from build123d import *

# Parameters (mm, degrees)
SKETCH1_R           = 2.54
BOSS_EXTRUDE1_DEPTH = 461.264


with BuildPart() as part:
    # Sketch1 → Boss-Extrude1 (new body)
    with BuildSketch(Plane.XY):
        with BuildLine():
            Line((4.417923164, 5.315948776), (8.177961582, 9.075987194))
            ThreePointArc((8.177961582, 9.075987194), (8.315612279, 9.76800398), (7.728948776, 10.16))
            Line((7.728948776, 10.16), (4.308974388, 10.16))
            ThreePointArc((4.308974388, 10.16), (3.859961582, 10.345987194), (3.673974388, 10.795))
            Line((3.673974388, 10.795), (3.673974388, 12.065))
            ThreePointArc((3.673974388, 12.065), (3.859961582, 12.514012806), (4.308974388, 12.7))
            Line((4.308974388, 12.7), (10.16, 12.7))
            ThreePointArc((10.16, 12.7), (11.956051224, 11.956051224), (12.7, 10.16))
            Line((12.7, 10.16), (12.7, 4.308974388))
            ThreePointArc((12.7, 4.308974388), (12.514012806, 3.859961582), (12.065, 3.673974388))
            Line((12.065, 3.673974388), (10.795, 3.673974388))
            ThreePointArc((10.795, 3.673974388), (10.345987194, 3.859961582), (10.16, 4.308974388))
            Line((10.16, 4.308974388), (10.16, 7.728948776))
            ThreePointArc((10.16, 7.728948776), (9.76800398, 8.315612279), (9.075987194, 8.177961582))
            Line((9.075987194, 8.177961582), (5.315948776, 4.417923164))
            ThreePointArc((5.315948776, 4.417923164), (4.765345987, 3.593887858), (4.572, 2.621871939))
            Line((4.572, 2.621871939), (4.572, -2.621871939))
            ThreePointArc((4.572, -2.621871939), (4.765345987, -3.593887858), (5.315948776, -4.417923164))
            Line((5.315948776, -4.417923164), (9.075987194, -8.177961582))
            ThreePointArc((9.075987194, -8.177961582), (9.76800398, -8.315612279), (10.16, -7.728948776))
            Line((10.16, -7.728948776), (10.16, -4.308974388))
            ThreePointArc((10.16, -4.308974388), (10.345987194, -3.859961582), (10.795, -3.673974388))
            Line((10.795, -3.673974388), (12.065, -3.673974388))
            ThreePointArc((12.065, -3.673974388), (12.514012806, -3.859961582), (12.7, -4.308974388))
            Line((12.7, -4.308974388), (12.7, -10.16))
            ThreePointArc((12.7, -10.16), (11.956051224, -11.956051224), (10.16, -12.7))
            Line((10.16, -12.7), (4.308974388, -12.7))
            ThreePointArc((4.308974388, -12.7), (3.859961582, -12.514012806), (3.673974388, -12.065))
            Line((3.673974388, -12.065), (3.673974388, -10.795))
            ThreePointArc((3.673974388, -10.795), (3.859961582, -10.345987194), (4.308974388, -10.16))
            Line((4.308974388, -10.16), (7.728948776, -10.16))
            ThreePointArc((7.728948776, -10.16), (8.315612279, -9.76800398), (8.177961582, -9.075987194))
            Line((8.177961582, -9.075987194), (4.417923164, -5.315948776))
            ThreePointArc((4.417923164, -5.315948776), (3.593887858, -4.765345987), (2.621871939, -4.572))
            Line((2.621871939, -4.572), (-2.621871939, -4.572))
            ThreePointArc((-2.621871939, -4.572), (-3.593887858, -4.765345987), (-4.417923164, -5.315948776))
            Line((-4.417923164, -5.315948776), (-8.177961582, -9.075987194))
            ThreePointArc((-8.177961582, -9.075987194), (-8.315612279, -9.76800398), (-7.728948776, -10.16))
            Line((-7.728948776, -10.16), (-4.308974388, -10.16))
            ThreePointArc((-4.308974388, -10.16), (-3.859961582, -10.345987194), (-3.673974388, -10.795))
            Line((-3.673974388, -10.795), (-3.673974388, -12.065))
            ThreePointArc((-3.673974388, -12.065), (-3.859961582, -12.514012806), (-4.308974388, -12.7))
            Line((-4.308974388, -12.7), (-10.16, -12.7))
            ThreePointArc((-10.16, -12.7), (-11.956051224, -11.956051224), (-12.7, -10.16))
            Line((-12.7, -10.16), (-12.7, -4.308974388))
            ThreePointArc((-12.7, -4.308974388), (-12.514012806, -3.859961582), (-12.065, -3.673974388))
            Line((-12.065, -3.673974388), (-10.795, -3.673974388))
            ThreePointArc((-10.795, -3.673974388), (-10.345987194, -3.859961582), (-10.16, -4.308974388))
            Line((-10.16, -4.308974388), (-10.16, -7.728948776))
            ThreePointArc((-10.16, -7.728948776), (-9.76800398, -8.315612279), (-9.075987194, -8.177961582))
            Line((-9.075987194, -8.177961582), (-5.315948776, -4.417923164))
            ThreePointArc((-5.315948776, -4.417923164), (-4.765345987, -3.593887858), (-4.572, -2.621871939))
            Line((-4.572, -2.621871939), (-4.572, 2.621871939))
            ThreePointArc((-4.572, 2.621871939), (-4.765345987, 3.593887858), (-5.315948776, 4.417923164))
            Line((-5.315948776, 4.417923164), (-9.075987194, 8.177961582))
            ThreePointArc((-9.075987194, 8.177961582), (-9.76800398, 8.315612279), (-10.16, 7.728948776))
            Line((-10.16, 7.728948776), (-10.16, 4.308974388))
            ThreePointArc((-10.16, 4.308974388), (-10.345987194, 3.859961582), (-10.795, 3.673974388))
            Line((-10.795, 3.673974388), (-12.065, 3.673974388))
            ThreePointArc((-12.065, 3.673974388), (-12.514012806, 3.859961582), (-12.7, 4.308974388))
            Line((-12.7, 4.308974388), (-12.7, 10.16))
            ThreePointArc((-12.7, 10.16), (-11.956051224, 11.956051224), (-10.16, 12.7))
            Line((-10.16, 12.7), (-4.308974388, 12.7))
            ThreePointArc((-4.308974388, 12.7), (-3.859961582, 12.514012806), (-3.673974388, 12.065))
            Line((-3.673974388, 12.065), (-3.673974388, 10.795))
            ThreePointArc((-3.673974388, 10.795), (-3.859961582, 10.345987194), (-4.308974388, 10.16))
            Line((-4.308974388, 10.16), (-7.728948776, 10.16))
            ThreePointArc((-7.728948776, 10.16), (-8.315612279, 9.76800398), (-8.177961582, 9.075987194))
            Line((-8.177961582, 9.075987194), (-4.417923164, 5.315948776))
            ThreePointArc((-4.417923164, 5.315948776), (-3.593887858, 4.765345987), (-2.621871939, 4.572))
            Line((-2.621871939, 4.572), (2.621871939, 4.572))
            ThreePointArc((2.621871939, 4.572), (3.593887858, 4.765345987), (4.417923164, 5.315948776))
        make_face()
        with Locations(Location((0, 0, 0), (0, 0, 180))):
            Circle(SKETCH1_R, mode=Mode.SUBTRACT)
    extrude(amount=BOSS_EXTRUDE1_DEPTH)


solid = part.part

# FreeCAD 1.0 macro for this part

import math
import FreeCAD as App
import Part
import Sketcher
from FreeCAD import Vector
Q = App.Units.Quantity

doc = App.newDocument("Part")
body = doc.addObject("PartDesign::Body", "Body")

# Sketch on XY plane
sketch1 = body.newObject("Sketcher::SketchObject", "Sketch")
sketch1.AttachmentSupport = (doc.getObject("XY_Plane"), [""])
sketch1.MapMode = "FlatFace"
sketch1.addGeometry([
    Part.LineSegment(Vector(8.177962, 9.075987, 0), Vector(4.417923, 5.315949, 0)),  # 0
    Part.ArcOfCircle(Part.Circle(Vector(2.621872, 7.112, 0), Vector(0, 0, 1), 2.54), math.radians(-90), math.radians(-45)),  # 1
    Part.LineSegment(Vector(2.621872, 4.572, 0), Vector(-2.621872, 4.572, 0)),  # 2
    Part.ArcOfCircle(Part.Circle(Vector(-2.621872, 7.112, 0), Vector(0, 0, 1), 2.54), math.radians(-135), math.radians(-90)),  # 3
    Part.LineSegment(Vector(-4.417923, 5.315949, 0), Vector(-8.177962, 9.075987, 0)),  # 4
    Part.ArcOfCircle(Part.Circle(Vector(-7.728949, 9.525, 0), Vector(0, 0, 1), 0.635), math.radians(90), math.radians(225)),  # 5
    Part.LineSegment(Vector(-7.728949, 10.16, 0), Vector(-4.308974, 10.16, 0)),  # 6
    Part.ArcOfCircle(Part.Circle(Vector(-4.308974, 10.795, 0), Vector(0, 0, 1), 0.635), math.radians(-90), math.radians(0)),  # 7
    Part.LineSegment(Vector(-3.673974, 10.795, 0), Vector(-3.673974, 12.065, 0)),  # 8
    Part.ArcOfCircle(Part.Circle(Vector(-4.308974, 12.065, 0), Vector(0, 0, 1), 0.635), math.radians(0), math.radians(90)),  # 9
    Part.LineSegment(Vector(-4.308974, 12.7, 0), Vector(-10.16, 12.7, 0)),  # 10
    Part.ArcOfCircle(Part.Circle(Vector(-10.16, 10.16, 0), Vector(0, 0, 1), 2.54), math.radians(90), math.radians(180)),  # 11
    Part.LineSegment(Vector(-12.7, 10.16, 0), Vector(-12.7, 4.308974, 0)),  # 12
    Part.ArcOfCircle(Part.Circle(Vector(-12.065, 4.308974, 0), Vector(0, 0, 1), 0.635), math.radians(180), math.radians(270)),  # 13
    Part.LineSegment(Vector(-12.065, 3.673974, 0), Vector(-10.795, 3.673974, 0)),  # 14
    Part.ArcOfCircle(Part.Circle(Vector(-10.795, 4.308974, 0), Vector(0, 0, 1), 0.635), math.radians(-90), math.radians(0)),  # 15
    Part.LineSegment(Vector(-10.16, 4.308974, 0), Vector(-10.16, 7.728949, 0)),  # 16
    Part.ArcOfCircle(Part.Circle(Vector(-9.525, 7.728949, 0), Vector(0, 0, 1), 0.635), math.radians(45), math.radians(180)),  # 17
    Part.LineSegment(Vector(-9.075987, 8.177962, 0), Vector(-5.315949, 4.417923, 0)),  # 18
    Part.ArcOfCircle(Part.Circle(Vector(-7.112, 2.621872, 0), Vector(0, 0, 1), 2.54), math.radians(0), math.radians(45)),  # 19
    Part.LineSegment(Vector(-4.572, 2.621872, 0), Vector(-4.572, -2.621872, 0)),  # 20
    Part.ArcOfCircle(Part.Circle(Vector(-7.112, -2.621872, 0), Vector(0, 0, 1), 2.54), math.radians(-45), math.radians(0)),  # 21
    Part.LineSegment(Vector(-5.315949, -4.417923, 0), Vector(-9.075987, -8.177962, 0)),  # 22
    Part.ArcOfCircle(Part.Circle(Vector(-9.525, -7.728949, 0), Vector(0, 0, 1), 0.635), math.radians(180), math.radians(315)),  # 23
    Part.LineSegment(Vector(-10.16, -7.728949, 0), Vector(-10.16, -4.308974, 0)),  # 24
    Part.ArcOfCircle(Part.Circle(Vector(-10.795, -4.308974, 0), Vector(0, 0, 1), 0.635), math.radians(0), math.radians(90)),  # 25
    Part.LineSegment(Vector(-10.795, -3.673974, 0), Vector(-12.065, -3.673974, 0)),  # 26
    Part.ArcOfCircle(Part.Circle(Vector(-12.065, -4.308974, 0), Vector(0, 0, 1), 0.635), math.radians(90), math.radians(180)),  # 27
    Part.LineSegment(Vector(-12.7, -4.308974, 0), Vector(-12.7, -10.16, 0)),  # 28
    Part.ArcOfCircle(Part.Circle(Vector(-10.16, -10.16, 0), Vector(0, 0, 1), 2.54), math.radians(-180), math.radians(-90)),  # 29
    Part.LineSegment(Vector(-10.16, -12.7, 0), Vector(-4.308974, -12.7, 0)),  # 30
    Part.ArcOfCircle(Part.Circle(Vector(-4.308974, -12.065, 0), Vector(0, 0, 1), 0.635), math.radians(-90), math.radians(0)),  # 31
    Part.LineSegment(Vector(-3.673974, -12.065, 0), Vector(-3.673974, -10.795, 0)),  # 32
    Part.ArcOfCircle(Part.Circle(Vector(-4.308974, -10.795, 0), Vector(0, 0, 1), 0.635), math.radians(0), math.radians(90)),  # 33
    Part.LineSegment(Vector(-4.308974, -10.16, 0), Vector(-7.728949, -10.16, 0)),  # 34
    Part.ArcOfCircle(Part.Circle(Vector(-7.728949, -9.525, 0), Vector(0, 0, 1), 0.635), math.radians(135), math.radians(270)),  # 35
    Part.LineSegment(Vector(-8.177962, -9.075987, 0), Vector(-4.417923, -5.315949, 0)),  # 36
    Part.ArcOfCircle(Part.Circle(Vector(-2.621872, -7.112, 0), Vector(0, 0, 1), 2.54), math.radians(90), math.radians(135)),  # 37
    Part.LineSegment(Vector(-2.621872, -4.572, 0), Vector(2.621872, -4.572, 0)),  # 38
    Part.ArcOfCircle(Part.Circle(Vector(2.621872, -7.112, 0), Vector(0, 0, 1), 2.54), math.radians(45), math.radians(90)),  # 39
    Part.LineSegment(Vector(4.417923, -5.315949, 0), Vector(8.177962, -9.075987, 0)),  # 40
    Part.ArcOfCircle(Part.Circle(Vector(7.728949, -9.525, 0), Vector(0, 0, 1), 0.635), math.radians(-90), math.radians(45)),  # 41
    Part.LineSegment(Vector(7.728949, -10.16, 0), Vector(4.308974, -10.16, 0)),  # 42
    Part.ArcOfCircle(Part.Circle(Vector(4.308974, -10.795, 0), Vector(0, 0, 1), 0.635), math.radians(90), math.radians(180)),  # 43
    Part.LineSegment(Vector(3.673974, -10.795, 0), Vector(3.673974, -12.065, 0)),  # 44
    Part.ArcOfCircle(Part.Circle(Vector(4.308974, -12.065, 0), Vector(0, 0, 1), 0.635), math.radians(180), math.radians(270)),  # 45
    Part.LineSegment(Vector(4.308974, -12.7, 0), Vector(10.16, -12.7, 0)),  # 46
    Part.ArcOfCircle(Part.Circle(Vector(10.16, -10.16, 0), Vector(0, 0, 1), 2.54), math.radians(-90), math.radians(0)),  # 47
    Part.LineSegment(Vector(12.7, -10.16, 0), Vector(12.7, -4.308974, 0)),  # 48
    Part.ArcOfCircle(Part.Circle(Vector(12.065, -4.308974, 0), Vector(0, 0, 1), 0.635), math.radians(0), math.radians(90)),  # 49
    Part.LineSegment(Vector(12.065, -3.673974, 0), Vector(10.795, -3.673974, 0)),  # 50
    Part.ArcOfCircle(Part.Circle(Vector(10.795, -4.308974, 0), Vector(0, 0, 1), 0.635), math.radians(90), math.radians(180)),  # 51
    Part.LineSegment(Vector(10.16, -4.308974, 0), Vector(10.16, -7.728949, 0)),  # 52
    Part.ArcOfCircle(Part.Circle(Vector(9.525, -7.728949, 0), Vector(0, 0, 1), 0.635), math.radians(-135), math.radians(0)),  # 53
    Part.LineSegment(Vector(9.075987, -8.177962, 0), Vector(5.315949, -4.417923, 0)),  # 54
    Part.ArcOfCircle(Part.Circle(Vector(7.112, -2.621872, 0), Vector(0, 0, 1), 2.54), math.radians(180), math.radians(225)),  # 55
    Part.LineSegment(Vector(4.572, -2.621872, 0), Vector(4.572, 2.621872, 0)),  # 56
    Part.ArcOfCircle(Part.Circle(Vector(7.112, 2.621872, 0), Vector(0, 0, 1), 2.54), math.radians(135), math.radians(180)),  # 57
    Part.LineSegment(Vector(5.315949, 4.417923, 0), Vector(9.075987, 8.177962, 0)),  # 58
    Part.ArcOfCircle(Part.Circle(Vector(9.525, 7.728949, 0), Vector(0, 0, 1), 0.635), math.radians(0), math.radians(135)),  # 59
    Part.LineSegment(Vector(10.16, 7.728949, 0), Vector(10.16, 4.308974, 0)),  # 60
    Part.ArcOfCircle(Part.Circle(Vector(10.795, 4.308974, 0), Vector(0, 0, 1), 0.635), math.radians(180), math.radians(270)),  # 61
    Part.LineSegment(Vector(10.795, 3.673974, 0), Vector(12.065, 3.673974, 0)),  # 62
    Part.ArcOfCircle(Part.Circle(Vector(12.065, 4.308974, 0), Vector(0, 0, 1), 0.635), math.radians(-90), math.radians(0)),  # 63
    Part.LineSegment(Vector(12.7, 4.308974, 0), Vector(12.7, 10.16, 0)),  # 64
    Part.ArcOfCircle(Part.Circle(Vector(10.16, 10.16, 0), Vector(0, 0, 1), 2.54), math.radians(0), math.radians(90)),  # 65
    Part.LineSegment(Vector(10.16, 12.7, 0), Vector(4.308974, 12.7, 0)),  # 66
    Part.ArcOfCircle(Part.Circle(Vector(4.308974, 12.065, 0), Vector(0, 0, 1), 0.635), math.radians(90), math.radians(180)),  # 67
    Part.LineSegment(Vector(3.673974, 12.065, 0), Vector(3.673974, 10.795, 0)),  # 68
    Part.ArcOfCircle(Part.Circle(Vector(4.308974, 10.795, 0), Vector(0, 0, 1), 0.635), math.radians(180), math.radians(270)),  # 69
    Part.LineSegment(Vector(4.308974, 10.16, 0), Vector(7.728949, 10.16, 0)),  # 70
    Part.ArcOfCircle(Part.Circle(Vector(7.728949, 9.525, 0), Vector(0, 0, 1), 0.635), math.radians(-45), math.radians(90)),  # 71
    Part.Circle(Vector(0, 0, 0), Vector(0, 0, 1), 2.54),  # 72
], False)
sketch1.addConstraint([
    Sketcher.Constraint("Tangent", 0, 2, 1, 2),
    Sketcher.Constraint("Tangent", 1, 1, 2, 1),
    Sketcher.Constraint("Tangent", 2, 2, 3, 2),
    Sketcher.Constraint("Tangent", 3, 1, 4, 1),
    Sketcher.Constraint("Tangent", 4, 2, 5, 2),
    Sketcher.Constraint("Tangent", 5, 1, 6, 1),
    Sketcher.Constraint("Tangent", 6, 2, 7, 1),
    Sketcher.Constraint("Tangent", 7, 2, 8, 1),
    Sketcher.Constraint("Tangent", 8, 2, 9, 1),
    Sketcher.Constraint("Tangent", 9, 2, 10, 1),
    Sketcher.Constraint("Tangent", 10, 2, 11, 1),
    Sketcher.Constraint("Tangent", 11, 2, 12, 1),
    Sketcher.Constraint("Tangent", 12, 2, 13, 1),
    Sketcher.Constraint("Tangent", 13, 2, 14, 1),
    Sketcher.Constraint("Tangent", 14, 2, 15, 1),
    Sketcher.Constraint("Tangent", 15, 2, 16, 1),
    Sketcher.Constraint("Tangent", 16, 2, 17, 2),
    Sketcher.Constraint("Tangent", 17, 1, 18, 1),
    Sketcher.Constraint("Tangent", 18, 2, 19, 2),
    Sketcher.Constraint("Tangent", 19, 1, 20, 1),
    Sketcher.Constraint("Tangent", 20, 2, 21, 2),
    Sketcher.Constraint("Tangent", 21, 1, 22, 1),
    Sketcher.Constraint("Tangent", 22, 2, 23, 2),
    Sketcher.Constraint("Tangent", 23, 1, 24, 1),
    Sketcher.Constraint("Tangent", 24, 2, 25, 1),
    Sketcher.Constraint("Tangent", 25, 2, 26, 1),
    Sketcher.Constraint("Tangent", 26, 2, 27, 1),
    Sketcher.Constraint("Tangent", 27, 2, 28, 1),
    Sketcher.Constraint("Tangent", 28, 2, 29, 1),
    Sketcher.Constraint("Tangent", 29, 2, 30, 1),
    Sketcher.Constraint("Tangent", 30, 2, 31, 1),
    Sketcher.Constraint("Tangent", 31, 2, 32, 1),
    Sketcher.Constraint("Tangent", 32, 2, 33, 1),
    Sketcher.Constraint("Tangent", 33, 2, 34, 1),
    Sketcher.Constraint("Tangent", 34, 2, 35, 2),
    Sketcher.Constraint("Tangent", 35, 1, 36, 1),
    Sketcher.Constraint("Tangent", 36, 2, 37, 2),
    Sketcher.Constraint("Tangent", 37, 1, 38, 1),
    Sketcher.Constraint("Tangent", 38, 2, 39, 2),
    Sketcher.Constraint("Tangent", 39, 1, 40, 1),
    Sketcher.Constraint("Tangent", 40, 2, 41, 2),
    Sketcher.Constraint("Tangent", 41, 1, 42, 1),
    Sketcher.Constraint("Tangent", 42, 2, 43, 1),
    Sketcher.Constraint("Tangent", 43, 2, 44, 1),
    Sketcher.Constraint("Tangent", 44, 2, 45, 1),
    Sketcher.Constraint("Tangent", 45, 2, 46, 1),
    Sketcher.Constraint("Tangent", 46, 2, 47, 1),
    Sketcher.Constraint("Tangent", 47, 2, 48, 1),
    Sketcher.Constraint("Tangent", 48, 2, 49, 1),
    Sketcher.Constraint("Tangent", 49, 2, 50, 1),
    Sketcher.Constraint("Tangent", 50, 2, 51, 1),
    Sketcher.Constraint("Tangent", 51, 2, 52, 1),
    Sketcher.Constraint("Tangent", 52, 2, 53, 2),
    Sketcher.Constraint("Tangent", 53, 1, 54, 1),
    Sketcher.Constraint("Tangent", 54, 2, 55, 2),
    Sketcher.Constraint("Tangent", 55, 1, 56, 1),
    Sketcher.Constraint("Tangent", 56, 2, 57, 2),
    Sketcher.Constraint("Tangent", 57, 1, 58, 1),
    Sketcher.Constraint("Tangent", 58, 2, 59, 2),
    Sketcher.Constraint("Tangent", 59, 1, 60, 1),
    Sketcher.Constraint("Tangent", 60, 2, 61, 1),
    Sketcher.Constraint("Tangent", 61, 2, 62, 1),
    Sketcher.Constraint("Tangent", 62, 2, 63, 1),
    Sketcher.Constraint("Tangent", 63, 2, 64, 1),
    Sketcher.Constraint("Tangent", 64, 2, 65, 1),
    Sketcher.Constraint("Tangent", 65, 2, 66, 1),
    Sketcher.Constraint("Tangent", 66, 2, 67, 1),
    Sketcher.Constraint("Tangent", 67, 2, 68, 1),
    Sketcher.Constraint("Tangent", 68, 2, 69, 1),
    Sketcher.Constraint("Tangent", 69, 2, 70, 1),
    Sketcher.Constraint("Tangent", 70, 2, 71, 2),
    Sketcher.Constraint("Tangent", 71, 1, 0, 1),
    Sketcher.Constraint("Horizontal", 2),
    Sketcher.Constraint("Horizontal", 6),
    Sketcher.Constraint("Vertical", 8),
    Sketcher.Constraint("Horizontal", 10),
    Sketcher.Constraint("Vertical", 12),
    Sketcher.Constraint("Horizontal", 14),
    Sketcher.Constraint("Vertical", 16),
    Sketcher.Constraint("Vertical", 20),
    Sketcher.Constraint("Vertical", 24),
    Sketcher.Constraint("Horizontal", 26),
    Sketcher.Constraint("Vertical", 28),
    Sketcher.Constraint("Horizontal", 30),
    Sketcher.Constraint("Vertical", 32),
    Sketcher.Constraint("Horizontal", 34),
    Sketcher.Constraint("Horizontal", 38),
    Sketcher.Constraint("Horizontal", 42),
    Sketcher.Constraint("Vertical", 44),
    Sketcher.Constraint("Horizontal", 46),
    Sketcher.Constraint("Vertical", 48),
    Sketcher.Constraint("Horizontal", 50),
    Sketcher.Constraint("Vertical", 52),
    Sketcher.Constraint("Vertical", 56),
    Sketcher.Constraint("Vertical", 60),
    Sketcher.Constraint("Horizontal", 62),
    Sketcher.Constraint("Vertical", 64),
    Sketcher.Constraint("Horizontal", 66),
    Sketcher.Constraint("Vertical", 68),
    Sketcher.Constraint("Horizontal", 70),
    Sketcher.Constraint("Coincident", 72, 3, -1, 1),
    Sketcher.Constraint("Equal", 1, 3),
    Sketcher.Constraint("Equal", 5, 7),
    Sketcher.Constraint("Equal", 7, 9),
    Sketcher.Constraint("Equal", 3, 11),
    Sketcher.Constraint("Equal", 9, 13),
    Sketcher.Constraint("Equal", 13, 15),
    Sketcher.Constraint("Equal", 15, 17),
    Sketcher.Constraint("Equal", 11, 19),
    Sketcher.Constraint("Equal", 19, 21),
    Sketcher.Constraint("Equal", 17, 23),
    Sketcher.Constraint("Equal", 23, 25),
    Sketcher.Constraint("Equal", 25, 27),
    Sketcher.Constraint("Equal", 21, 29),
    Sketcher.Constraint("Equal", 27, 31),
    Sketcher.Constraint("Equal", 31, 33),
    Sketcher.Constraint("Equal", 33, 35),
    Sketcher.Constraint("Equal", 29, 37),
    Sketcher.Constraint("Equal", 37, 39),
    Sketcher.Constraint("Equal", 35, 41),
    Sketcher.Constraint("Equal", 41, 43),
    Sketcher.Constraint("Equal", 43, 45),
    Sketcher.Constraint("Equal", 39, 47),
    Sketcher.Constraint("Equal", 45, 49),
    Sketcher.Constraint("Equal", 49, 51),
    Sketcher.Constraint("Equal", 51, 53),
    Sketcher.Constraint("Equal", 47, 55),
    Sketcher.Constraint("Equal", 55, 57),
    Sketcher.Constraint("Equal", 53, 59),
    Sketcher.Constraint("Equal", 59, 61),
    Sketcher.Constraint("Equal", 61, 63),
    Sketcher.Constraint("Equal", 57, 65),
    Sketcher.Constraint("Equal", 63, 67),
    Sketcher.Constraint("Equal", 67, 69),
    Sketcher.Constraint("Equal", 69, 71),
    Sketcher.Constraint("Equal", 65, 72),
    Sketcher.Constraint("Symmetric", 1, 3, 37, 3, -1, 1),
    Sketcher.Constraint("Symmetric", 5, 3, 41, 3, -1, 1),
    Sketcher.Constraint("Symmetric", 9, 3, 45, 3, -1, 1),
    Sketcher.Constraint("Symmetric", 13, 3, 49, 3, -1, 1),
    Sketcher.Constraint("Symmetric", 17, 3, 53, 3, -1, 1),
    Sketcher.Constraint("Symmetric", 19, 3, 55, 3, -1, 1),
    Sketcher.Constraint("Symmetric", 23, 3, 59, 3, -1, 1),
    Sketcher.Constraint("Symmetric", 27, 3, 63, 3, -1, 1),
    Sketcher.Constraint("Symmetric", 31, 3, 67, 3, -1, 1),
    Sketcher.Constraint("Symmetric", 35, 3, 71, 3, -1, 1),
    Sketcher.Constraint("Symmetric", 35, 3, 41, 3, -2),
    Sketcher.Constraint("Symmetric", 31, 3, 45, 3, -2),
    Sketcher.Constraint("Symmetric", 27, 3, 49, 3, -2),
    Sketcher.Constraint("Symmetric", 23, 3, 53, 3, -2),
    Sketcher.Constraint("Perpendicular", 0, 4),
    Sketcher.Constraint("Parallel", 4, 18),
    Sketcher.Constraint("Perpendicular", 18, 22),
    Sketcher.Constraint("Perpendicular", 36, 40),
    Sketcher.Constraint("Perpendicular", 54, 58),
    Sketcher.Constraint("Horizontal", 21, 3, 55, 3),
    Sketcher.Constraint("Horizontal", 65, 3, 5, 1),
    Sketcher.Constraint("Vertical", 10, 2, 15, 2),
    Sketcher.Constraint("Equal", 66, 12),
    Sketcher.Constraint("Equal", 70, 16),
    Sketcher.Constraint("Equal", 38, 20),
    Sketcher.Constraint("Equal", 4, 18),
    Sketcher.Constraint("Diameter", 72, Q("0.2 in")),
    Sketcher.Constraint("Radius", 5, Q("0.025 in")),
    Sketcher.Constraint("DistanceX", 11, 3, -1, 1, Q("0.4 in")),
    Sketcher.Constraint("DistanceY", -1, 1, 1, 3, Q("0.28 in")),
    Sketcher.Constraint("DistanceX", 2, 2, 2, 1, Q("5.243744 mm")),
    Sketcher.Constraint("DistanceX", 6, 1, 6, 2, Q("3.419974 mm")),
])
pad1 = body.newObject("PartDesign::Pad", "Pad")
pad1.Profile = sketch1
pad1.Length = Q("18.16 in")

doc.recompute()
